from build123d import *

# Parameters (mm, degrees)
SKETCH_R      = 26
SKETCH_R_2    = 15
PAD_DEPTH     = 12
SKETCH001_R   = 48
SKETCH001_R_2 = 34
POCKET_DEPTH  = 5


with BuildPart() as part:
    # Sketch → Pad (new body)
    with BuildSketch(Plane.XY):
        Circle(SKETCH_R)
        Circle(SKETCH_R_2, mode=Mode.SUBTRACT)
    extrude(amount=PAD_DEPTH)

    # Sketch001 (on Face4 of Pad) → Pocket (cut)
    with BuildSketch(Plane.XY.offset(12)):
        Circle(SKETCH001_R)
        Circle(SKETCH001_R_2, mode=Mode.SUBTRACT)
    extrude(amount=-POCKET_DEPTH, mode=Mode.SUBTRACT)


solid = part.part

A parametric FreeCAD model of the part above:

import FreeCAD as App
import Part
import Sketcher

V = App.Vector

doc = App.newDocument("Part")
body = doc.addObject("PartDesign::Body", "Body")

sketch1 = body.newObject("Sketcher::SketchObject", "Sketch")
sketch1.AttachmentSupport = (doc.getObject("XY_Plane"), [""])
sketch1.MapMode = "FlatFace"
sketch1.addGeometry(Part.Circle(V(0, 0, 0), V(0, 0, 1), 26), False)
sketch1.addGeometry(Part.Circle(V(0, 0, 0), V(0, 0, 1), 15), False)
sketch1.addConstraint(Sketcher.Constraint("Coincident", 0, 3, -1, 1))
sketch1.addConstraint(Sketcher.Constraint("Coincident", 1, 3, -1, 1))
sketch1.addConstraint(Sketcher.Constraint("Diameter", 0, 52.0))
sketch1.addConstraint(Sketcher.Constraint("Diameter", 1, 30.0))
pad1 = body.newObject("PartDesign::Pad", "Pad")
pad1.Profile = sketch1
pad1.Length = 12

sketch2 = body.newObject("Sketcher::SketchObject", "Sketch001")
sketch2.AttachmentSupport = (doc.getObject("XY_Plane"), [""])
sketch2.MapMode = "FlatFace"
sketch2.AttachmentOffset = App.Placement(V(0, 0, 12), App.Rotation())
sketch2.addGeometry(Part.Circle(V(0, 0, 0), V(0, 0, 1), 48), False)
sketch2.addGeometry(Part.Circle(V(0, 0, 0), V(0, 0, 1), 34), False)
sketch2.addConstraint(Sketcher.Constraint("Coincident", 0, 3, -1, 1))
sketch2.addConstraint(Sketcher.Constraint("Coincident", 1, 3, -1, 1))
sketch2.addConstraint(Sketcher.Constraint("Diameter", 0, 96.0))
sketch2.addConstraint(Sketcher.Constraint("Diameter", 1, 68.0))
pocket1 = body.newObject("PartDesign::Pocket", "Pocket")
pocket1.Profile = sketch2
pocket1.Length = 5

doc.recompute()
